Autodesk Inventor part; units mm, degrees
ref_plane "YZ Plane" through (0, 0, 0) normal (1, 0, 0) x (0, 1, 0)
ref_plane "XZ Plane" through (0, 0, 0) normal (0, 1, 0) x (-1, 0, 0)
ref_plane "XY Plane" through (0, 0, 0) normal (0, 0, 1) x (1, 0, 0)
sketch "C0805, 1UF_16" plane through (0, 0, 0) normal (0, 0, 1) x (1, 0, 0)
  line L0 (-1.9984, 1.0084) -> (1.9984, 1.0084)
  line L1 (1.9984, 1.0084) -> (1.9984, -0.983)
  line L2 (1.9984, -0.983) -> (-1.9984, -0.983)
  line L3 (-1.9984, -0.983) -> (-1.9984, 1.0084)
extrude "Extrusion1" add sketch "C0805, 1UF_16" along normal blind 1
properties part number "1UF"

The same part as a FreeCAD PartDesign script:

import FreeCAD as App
import Part
import Sketcher

V = App.Vector


def add_polygon(sketch, points):
    """Adds a closed chain of lines whose ends are joined by coincident constraints."""
    first, n = sketch.GeometryCount, len(points)
    for a, b in zip(points, points[1:] + points[:1]):
        sketch.addGeometry(Part.LineSegment(App.Vector(*a, 0), App.Vector(*b, 0)), False)
    for i in range(n):
        sketch.addConstraint(Sketcher.Constraint("Coincident", first + i, 2, first + (i + 1) % n, 1))

doc = App.newDocument("Part")
body = doc.addObject("PartDesign::Body", "Body")

sketch1 = body.newObject("Sketcher::SketchObject", "Sketch")
sketch1.AttachmentSupport = (doc.getObject("XY_Plane"), [""])
sketch1.MapMode = "FlatFace"
add_polygon(sketch1, [(2, 1), (-2, 1), (-2, -1), (2, -1)])
sketch1.addConstraint(Sketcher.Constraint("Horizontal", 0))
sketch1.addConstraint(Sketcher.Constraint("Vertical", 1))
sketch1.addConstraint(Sketcher.Constraint("Horizontal", 2))
sketch1.addConstraint(Sketcher.Constraint("Vertical", 3))
sketch1.addConstraint(Sketcher.Constraint("DistanceX", 0, 2, 0, 1, 3.9968))
sketch1.addConstraint(Sketcher.Constraint("DistanceY", 1, 2, 1, 1, 1.9914))
sketch1.addConstraint(Sketcher.Constraint("DistanceY", 1, 2, -1, 1, 0.983))
sketch1.addConstraint(Sketcher.Constraint("DistanceX", 0, 2, -1, 1, 1.9984))
pad1 = body.newObject("PartDesign::Pad", "Pad")
pad1.Profile = sketch1
pad1.Length = 1

doc.recompute()
